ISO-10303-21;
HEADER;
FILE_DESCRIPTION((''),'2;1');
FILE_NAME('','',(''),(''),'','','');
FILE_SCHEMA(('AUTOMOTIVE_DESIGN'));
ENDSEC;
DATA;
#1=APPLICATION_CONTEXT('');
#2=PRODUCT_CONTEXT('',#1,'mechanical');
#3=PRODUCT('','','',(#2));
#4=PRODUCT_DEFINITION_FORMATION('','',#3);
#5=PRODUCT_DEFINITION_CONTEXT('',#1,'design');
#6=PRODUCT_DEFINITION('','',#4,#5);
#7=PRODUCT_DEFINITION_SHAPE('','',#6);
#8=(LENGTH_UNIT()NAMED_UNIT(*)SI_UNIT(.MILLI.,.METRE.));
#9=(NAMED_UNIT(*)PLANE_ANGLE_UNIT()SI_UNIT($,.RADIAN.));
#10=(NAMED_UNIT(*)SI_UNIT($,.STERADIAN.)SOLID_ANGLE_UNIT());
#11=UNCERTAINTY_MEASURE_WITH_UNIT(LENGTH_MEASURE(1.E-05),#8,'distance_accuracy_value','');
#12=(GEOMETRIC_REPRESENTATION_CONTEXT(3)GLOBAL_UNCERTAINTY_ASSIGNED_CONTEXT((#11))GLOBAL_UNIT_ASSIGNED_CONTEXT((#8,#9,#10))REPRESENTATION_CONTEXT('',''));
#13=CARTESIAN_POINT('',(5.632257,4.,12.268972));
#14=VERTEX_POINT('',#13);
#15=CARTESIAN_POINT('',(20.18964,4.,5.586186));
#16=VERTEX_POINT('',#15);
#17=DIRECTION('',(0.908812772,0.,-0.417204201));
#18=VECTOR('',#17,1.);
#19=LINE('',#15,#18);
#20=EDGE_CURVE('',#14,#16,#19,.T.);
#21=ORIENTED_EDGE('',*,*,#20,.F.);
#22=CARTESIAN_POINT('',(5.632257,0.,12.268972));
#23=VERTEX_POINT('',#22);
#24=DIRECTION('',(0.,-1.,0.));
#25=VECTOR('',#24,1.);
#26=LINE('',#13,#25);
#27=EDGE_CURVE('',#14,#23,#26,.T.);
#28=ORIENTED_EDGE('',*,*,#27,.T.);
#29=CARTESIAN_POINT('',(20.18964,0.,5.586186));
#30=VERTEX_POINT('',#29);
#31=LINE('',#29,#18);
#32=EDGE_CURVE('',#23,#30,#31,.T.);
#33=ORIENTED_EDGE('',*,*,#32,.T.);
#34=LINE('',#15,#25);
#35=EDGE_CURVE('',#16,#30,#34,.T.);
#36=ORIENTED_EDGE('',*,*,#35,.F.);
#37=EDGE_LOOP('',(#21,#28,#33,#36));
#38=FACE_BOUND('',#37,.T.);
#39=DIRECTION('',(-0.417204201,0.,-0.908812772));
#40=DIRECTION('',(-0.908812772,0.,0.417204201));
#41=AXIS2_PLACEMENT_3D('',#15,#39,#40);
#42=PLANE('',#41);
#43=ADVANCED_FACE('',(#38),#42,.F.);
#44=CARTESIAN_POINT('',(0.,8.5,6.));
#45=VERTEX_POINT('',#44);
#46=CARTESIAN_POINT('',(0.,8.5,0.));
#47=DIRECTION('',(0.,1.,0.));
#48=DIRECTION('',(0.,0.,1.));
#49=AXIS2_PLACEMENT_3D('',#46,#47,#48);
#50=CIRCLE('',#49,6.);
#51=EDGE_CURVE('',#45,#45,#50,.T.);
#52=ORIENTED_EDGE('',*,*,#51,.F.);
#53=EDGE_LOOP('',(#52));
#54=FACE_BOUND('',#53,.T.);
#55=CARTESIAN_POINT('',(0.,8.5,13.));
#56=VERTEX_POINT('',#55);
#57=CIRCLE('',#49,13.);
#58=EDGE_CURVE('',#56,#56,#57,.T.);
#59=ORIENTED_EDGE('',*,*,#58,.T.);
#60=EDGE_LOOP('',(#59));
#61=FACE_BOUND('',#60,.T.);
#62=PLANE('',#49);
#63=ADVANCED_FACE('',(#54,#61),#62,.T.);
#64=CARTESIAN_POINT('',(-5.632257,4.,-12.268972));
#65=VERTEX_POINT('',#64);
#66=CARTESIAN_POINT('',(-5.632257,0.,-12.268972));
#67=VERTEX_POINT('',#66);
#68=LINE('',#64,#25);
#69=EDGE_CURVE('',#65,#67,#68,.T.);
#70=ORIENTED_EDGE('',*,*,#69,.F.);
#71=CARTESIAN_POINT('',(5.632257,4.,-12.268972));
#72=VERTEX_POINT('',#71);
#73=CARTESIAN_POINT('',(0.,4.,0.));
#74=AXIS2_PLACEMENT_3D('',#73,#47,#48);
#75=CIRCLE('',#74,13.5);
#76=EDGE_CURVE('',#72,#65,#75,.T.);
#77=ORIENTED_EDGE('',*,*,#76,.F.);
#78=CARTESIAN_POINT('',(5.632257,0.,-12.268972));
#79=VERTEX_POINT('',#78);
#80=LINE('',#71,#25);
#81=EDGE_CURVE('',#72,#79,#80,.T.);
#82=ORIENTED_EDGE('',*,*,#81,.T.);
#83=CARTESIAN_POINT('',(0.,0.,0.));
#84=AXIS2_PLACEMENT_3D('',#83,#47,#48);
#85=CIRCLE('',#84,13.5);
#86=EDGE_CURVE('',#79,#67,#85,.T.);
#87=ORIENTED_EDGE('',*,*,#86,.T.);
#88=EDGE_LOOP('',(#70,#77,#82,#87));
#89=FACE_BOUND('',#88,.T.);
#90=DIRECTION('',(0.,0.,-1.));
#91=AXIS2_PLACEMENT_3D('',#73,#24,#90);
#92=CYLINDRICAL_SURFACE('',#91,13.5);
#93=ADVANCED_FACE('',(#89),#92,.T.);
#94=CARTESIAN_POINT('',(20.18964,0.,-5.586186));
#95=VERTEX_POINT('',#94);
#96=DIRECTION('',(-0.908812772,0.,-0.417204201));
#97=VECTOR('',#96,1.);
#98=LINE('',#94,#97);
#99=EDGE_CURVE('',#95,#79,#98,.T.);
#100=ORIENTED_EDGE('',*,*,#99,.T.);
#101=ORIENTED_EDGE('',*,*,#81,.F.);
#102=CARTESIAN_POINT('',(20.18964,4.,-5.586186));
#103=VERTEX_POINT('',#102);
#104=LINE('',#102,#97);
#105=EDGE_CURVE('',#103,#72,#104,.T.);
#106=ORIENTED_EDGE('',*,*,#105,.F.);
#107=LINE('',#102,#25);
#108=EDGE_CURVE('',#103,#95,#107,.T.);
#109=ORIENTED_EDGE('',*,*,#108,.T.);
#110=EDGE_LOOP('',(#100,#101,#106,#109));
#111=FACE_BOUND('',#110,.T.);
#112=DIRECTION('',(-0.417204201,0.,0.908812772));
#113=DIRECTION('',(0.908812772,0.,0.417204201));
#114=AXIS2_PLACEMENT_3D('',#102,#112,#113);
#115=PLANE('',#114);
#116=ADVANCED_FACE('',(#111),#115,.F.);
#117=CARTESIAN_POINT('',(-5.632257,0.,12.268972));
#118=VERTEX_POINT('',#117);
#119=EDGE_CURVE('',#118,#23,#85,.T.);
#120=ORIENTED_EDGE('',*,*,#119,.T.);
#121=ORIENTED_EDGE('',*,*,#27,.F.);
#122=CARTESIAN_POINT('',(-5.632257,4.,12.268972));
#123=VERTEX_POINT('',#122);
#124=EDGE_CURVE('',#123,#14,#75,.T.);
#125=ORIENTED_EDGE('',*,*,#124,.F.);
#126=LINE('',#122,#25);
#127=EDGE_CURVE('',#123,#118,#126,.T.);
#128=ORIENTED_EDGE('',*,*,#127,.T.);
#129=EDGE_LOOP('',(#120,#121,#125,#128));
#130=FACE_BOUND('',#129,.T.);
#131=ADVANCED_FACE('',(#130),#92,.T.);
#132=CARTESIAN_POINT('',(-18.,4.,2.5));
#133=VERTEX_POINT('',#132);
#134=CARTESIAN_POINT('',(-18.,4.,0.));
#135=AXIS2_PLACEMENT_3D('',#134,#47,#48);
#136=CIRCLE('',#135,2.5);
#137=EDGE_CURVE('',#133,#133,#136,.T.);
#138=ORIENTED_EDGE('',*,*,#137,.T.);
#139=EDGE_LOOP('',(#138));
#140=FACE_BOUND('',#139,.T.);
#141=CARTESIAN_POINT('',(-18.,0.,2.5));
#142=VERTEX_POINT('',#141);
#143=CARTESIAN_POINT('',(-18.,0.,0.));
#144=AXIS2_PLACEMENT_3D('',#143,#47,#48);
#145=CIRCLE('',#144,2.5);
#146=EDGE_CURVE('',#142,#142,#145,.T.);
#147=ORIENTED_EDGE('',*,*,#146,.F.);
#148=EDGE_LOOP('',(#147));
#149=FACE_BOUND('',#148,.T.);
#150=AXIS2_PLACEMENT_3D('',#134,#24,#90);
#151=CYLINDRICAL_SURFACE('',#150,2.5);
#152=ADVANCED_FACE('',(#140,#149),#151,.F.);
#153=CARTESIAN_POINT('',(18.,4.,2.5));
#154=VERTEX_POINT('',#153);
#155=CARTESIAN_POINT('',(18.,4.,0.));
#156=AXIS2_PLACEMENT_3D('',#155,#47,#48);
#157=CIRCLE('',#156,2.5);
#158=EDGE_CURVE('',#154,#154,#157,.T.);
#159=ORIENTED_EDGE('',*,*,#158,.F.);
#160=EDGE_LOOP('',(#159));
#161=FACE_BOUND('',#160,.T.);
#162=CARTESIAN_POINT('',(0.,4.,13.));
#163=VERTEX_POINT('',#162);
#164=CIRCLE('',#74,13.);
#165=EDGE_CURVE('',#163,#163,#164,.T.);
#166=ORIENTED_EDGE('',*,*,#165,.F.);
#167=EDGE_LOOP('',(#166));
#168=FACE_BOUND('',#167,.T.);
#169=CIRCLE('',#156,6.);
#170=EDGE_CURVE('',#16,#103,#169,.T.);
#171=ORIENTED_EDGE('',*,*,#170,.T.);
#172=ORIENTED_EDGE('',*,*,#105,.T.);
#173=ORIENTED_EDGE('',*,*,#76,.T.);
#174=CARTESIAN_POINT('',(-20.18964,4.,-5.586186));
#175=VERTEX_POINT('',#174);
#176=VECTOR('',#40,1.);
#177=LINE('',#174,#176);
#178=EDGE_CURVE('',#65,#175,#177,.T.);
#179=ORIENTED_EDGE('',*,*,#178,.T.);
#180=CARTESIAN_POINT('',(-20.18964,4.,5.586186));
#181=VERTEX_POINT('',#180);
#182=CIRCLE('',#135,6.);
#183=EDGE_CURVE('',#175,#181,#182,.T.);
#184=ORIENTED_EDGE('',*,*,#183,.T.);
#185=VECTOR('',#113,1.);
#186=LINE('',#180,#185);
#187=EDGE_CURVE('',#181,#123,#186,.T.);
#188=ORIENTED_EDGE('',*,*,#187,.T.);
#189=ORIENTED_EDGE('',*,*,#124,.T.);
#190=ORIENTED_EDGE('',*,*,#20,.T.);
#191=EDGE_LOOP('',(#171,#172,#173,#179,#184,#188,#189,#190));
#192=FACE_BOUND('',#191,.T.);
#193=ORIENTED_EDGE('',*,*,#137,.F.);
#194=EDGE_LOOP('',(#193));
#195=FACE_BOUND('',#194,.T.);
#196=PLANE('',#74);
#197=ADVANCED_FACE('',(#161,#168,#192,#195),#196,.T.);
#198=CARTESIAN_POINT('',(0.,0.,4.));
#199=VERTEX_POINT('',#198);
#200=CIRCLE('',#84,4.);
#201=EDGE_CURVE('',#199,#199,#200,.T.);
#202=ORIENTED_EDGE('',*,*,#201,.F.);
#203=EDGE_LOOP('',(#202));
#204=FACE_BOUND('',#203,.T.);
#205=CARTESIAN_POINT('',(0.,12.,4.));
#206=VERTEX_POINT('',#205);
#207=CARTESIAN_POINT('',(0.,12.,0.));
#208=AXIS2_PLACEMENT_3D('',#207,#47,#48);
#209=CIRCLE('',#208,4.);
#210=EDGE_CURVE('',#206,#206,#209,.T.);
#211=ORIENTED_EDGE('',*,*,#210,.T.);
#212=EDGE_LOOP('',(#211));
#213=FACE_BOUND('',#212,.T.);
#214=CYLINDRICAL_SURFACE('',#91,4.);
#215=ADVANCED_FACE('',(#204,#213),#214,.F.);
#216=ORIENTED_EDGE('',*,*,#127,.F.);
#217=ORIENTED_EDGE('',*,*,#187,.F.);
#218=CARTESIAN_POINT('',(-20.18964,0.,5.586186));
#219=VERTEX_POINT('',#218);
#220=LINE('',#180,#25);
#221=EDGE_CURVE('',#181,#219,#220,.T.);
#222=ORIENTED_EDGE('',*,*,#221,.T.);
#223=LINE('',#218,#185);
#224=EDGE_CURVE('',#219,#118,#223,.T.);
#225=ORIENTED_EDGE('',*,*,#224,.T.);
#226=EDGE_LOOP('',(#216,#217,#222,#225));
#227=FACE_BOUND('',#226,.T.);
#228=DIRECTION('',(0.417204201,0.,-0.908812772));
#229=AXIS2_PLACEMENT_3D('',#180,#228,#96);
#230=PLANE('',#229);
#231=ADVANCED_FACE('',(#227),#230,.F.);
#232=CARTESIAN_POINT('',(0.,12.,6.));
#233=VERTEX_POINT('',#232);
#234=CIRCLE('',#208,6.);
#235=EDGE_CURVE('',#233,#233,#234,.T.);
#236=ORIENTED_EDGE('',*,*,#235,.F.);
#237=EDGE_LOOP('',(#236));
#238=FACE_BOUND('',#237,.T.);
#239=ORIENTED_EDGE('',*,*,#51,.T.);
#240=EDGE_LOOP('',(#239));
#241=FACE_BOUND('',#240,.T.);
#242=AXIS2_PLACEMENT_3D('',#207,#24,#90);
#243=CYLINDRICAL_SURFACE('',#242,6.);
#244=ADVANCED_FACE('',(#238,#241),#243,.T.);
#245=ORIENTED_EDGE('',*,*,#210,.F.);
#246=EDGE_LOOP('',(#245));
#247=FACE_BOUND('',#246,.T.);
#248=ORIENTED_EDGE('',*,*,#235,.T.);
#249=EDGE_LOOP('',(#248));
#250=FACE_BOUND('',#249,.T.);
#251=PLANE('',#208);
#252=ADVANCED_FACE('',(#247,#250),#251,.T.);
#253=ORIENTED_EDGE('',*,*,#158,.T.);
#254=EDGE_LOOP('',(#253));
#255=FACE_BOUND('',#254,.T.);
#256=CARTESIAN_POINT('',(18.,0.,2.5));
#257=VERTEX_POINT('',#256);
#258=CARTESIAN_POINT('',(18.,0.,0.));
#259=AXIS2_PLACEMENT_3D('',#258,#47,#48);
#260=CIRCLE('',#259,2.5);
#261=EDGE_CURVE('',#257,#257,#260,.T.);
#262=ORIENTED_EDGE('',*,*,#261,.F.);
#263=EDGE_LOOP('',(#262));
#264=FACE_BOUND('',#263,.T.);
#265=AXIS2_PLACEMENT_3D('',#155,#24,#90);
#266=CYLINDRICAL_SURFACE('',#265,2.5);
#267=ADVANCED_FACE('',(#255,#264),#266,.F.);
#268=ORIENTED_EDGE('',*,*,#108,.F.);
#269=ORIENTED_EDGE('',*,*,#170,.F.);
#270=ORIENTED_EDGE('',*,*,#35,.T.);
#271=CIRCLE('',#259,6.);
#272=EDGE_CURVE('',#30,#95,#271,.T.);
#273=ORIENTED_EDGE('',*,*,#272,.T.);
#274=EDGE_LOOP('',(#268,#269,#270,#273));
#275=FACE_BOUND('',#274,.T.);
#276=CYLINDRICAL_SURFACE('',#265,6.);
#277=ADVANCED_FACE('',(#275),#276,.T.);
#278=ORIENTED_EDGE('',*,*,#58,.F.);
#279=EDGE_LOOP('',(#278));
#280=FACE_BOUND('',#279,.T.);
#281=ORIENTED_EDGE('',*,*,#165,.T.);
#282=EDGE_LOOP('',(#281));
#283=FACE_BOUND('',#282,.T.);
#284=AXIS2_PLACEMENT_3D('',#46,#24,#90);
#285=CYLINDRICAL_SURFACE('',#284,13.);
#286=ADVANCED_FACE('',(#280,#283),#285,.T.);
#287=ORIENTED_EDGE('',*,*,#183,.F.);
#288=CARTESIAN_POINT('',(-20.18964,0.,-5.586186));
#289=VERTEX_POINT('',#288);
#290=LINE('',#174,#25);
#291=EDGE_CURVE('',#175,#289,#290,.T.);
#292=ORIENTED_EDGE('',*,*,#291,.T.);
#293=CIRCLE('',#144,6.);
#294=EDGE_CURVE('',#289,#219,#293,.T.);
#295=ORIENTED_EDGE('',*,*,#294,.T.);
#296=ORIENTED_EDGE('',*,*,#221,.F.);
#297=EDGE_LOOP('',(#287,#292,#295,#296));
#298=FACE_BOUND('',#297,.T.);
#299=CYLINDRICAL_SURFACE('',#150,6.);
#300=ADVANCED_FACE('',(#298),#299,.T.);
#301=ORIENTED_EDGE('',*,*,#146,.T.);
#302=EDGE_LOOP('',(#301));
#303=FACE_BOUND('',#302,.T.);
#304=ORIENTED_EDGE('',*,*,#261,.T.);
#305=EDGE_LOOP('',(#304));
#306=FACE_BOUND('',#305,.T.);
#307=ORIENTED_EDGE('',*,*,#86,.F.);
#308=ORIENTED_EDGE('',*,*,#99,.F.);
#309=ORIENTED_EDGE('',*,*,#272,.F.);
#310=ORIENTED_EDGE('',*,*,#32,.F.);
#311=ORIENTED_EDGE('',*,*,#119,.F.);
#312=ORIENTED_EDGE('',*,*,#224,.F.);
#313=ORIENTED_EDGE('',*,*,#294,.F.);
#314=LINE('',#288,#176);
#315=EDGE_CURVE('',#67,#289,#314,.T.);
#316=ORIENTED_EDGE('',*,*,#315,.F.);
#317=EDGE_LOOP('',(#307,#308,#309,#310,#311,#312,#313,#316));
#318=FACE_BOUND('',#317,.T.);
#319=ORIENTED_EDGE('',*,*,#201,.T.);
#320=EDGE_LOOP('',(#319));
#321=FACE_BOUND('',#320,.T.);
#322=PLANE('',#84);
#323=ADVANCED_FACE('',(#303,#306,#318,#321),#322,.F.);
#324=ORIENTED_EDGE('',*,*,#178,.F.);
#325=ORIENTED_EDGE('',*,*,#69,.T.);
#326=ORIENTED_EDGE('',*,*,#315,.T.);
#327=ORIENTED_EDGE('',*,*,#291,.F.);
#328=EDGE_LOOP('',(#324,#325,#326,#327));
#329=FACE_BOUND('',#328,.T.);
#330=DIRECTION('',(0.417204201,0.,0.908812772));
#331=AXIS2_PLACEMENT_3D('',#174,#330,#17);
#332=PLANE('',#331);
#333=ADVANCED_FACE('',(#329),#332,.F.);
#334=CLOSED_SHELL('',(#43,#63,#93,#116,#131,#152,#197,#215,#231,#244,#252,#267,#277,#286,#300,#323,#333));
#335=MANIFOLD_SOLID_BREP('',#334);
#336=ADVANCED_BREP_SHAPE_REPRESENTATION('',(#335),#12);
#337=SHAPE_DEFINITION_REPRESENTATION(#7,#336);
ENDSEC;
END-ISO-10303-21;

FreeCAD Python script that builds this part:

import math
import FreeCAD as App
import Part
import Sketcher
from FreeCAD import Vector
Q = App.Units.Quantity

doc = App.newDocument("Part")
body = doc.addObject("PartDesign::Body", "Body")

# Sketch on XZ plane
sketch1 = body.newObject("Sketcher::SketchObject", "Sketch")
sketch1.AttachmentSupport = (doc.getObject("XZ_Plane"), [""])
sketch1.MapMode = "FlatFace"
sketch1.addGeometry(Part.LineSegment(Vector(-5.632257, -12.268972, 0), Vector(-20.18964, -5.586186, 0)), False)
sketch1.addGeometry(Part.ArcOfCircle(Part.Circle(Vector(-18, 0, 0), Vector(0, 0, 1), 6), math.radians(111.403888), math.radians(248.596112)), False)
sketch1.addGeometry(Part.LineSegment(Vector(-20.18964, 5.586186, 0), Vector(-5.632257, 12.268972, 0)), False)
sketch1.addGeometry(Part.ArcOfCircle(Part.Circle(Vector(0, 0, 0), Vector(0, 0, 1), 13.5), math.radians(65.341798), math.radians(114.658202)), False)
sketch1.addGeometry(Part.LineSegment(Vector(5.632257, 12.268972, 0), Vector(20.18964, 5.586186, 0)), False)
sketch1.addGeometry(Part.ArcOfCircle(Part.Circle(Vector(18, 0, 0), Vector(0, 0, 1), 6), math.radians(-68.596112), math.radians(68.596112)), False)
sketch1.addGeometry(Part.LineSegment(Vector(20.18964, -5.586186, 0), Vector(5.632257, -12.268972, 0)), False)
sketch1.addGeometry(Part.ArcOfCircle(Part.Circle(Vector(0, 0, 0), Vector(0, 0, 1), 13.5), math.radians(-114.658202), math.radians(-65.341798)), False)
sketch1.addGeometry(Part.Circle(Vector(18, 0, 0), Vector(0, 0, 1), 2.5), False)
sketch1.addGeometry(Part.Circle(Vector(0, 0, 0), Vector(0, 0, 1), 4), False)
sketch1.addGeometry(Part.Circle(Vector(-18, 0, 0), Vector(0, 0, 1), 2.5), False)
sketch1.addConstraint(Sketcher.Constraint("Coincident", 0, 2, 1, 2))
sketch1.addConstraint(Sketcher.Constraint("Coincident", 1, 1, 2, 1))
sketch1.addConstraint(Sketcher.Constraint("Tangent", 2, 2, 3, 2))
sketch1.addConstraint(Sketcher.Constraint("Tangent", 3, 1, 4, 1))
sketch1.addConstraint(Sketcher.Constraint("Coincident", 4, 2, 5, 2))
sketch1.addConstraint(Sketcher.Constraint("Coincident", 5, 1, 6, 1))
sketch1.addConstraint(Sketcher.Constraint("Tangent", 6, 2, 7, 2))
sketch1.addConstraint(Sketcher.Constraint("Tangent", 7, 1, 0, 1))
sketch1.addConstraint(Sketcher.Constraint("Coincident", 3, 3, -1, 1))
sketch1.addConstraint(Sketcher.Constraint("Coincident", 7, 3, -1, 1))
sketch1.addConstraint(Sketcher.Constraint("Coincident", 9, 3, -1, 1))
sketch1.addConstraint(Sketcher.Constraint("Coincident", 8, 3, 5, 3))
sketch1.addConstraint(Sketcher.Constraint("Coincident", 10, 3, 1, 3))
sketch1.addConstraint(Sketcher.Constraint("Equal", 1, 5))
sketch1.addConstraint(Sketcher.Constraint("Equal", 3, 7))
sketch1.addConstraint(Sketcher.Constraint("Equal", 8, 10))
sketch1.addConstraint(Sketcher.Constraint("Symmetric", 1, 3, 5, 3, -1, 1))
sketch1.addConstraint(Sketcher.Constraint("Symmetric", 1, 1, 4, 2, -2))
sketch1.addConstraint(Sketcher.Constraint("Parallel", 0, 4))
sketch1.addConstraint(Sketcher.Constraint("Parallel", 2, 6))
sketch1.addConstraint(Sketcher.Constraint("Diameter", 8, Q("5 mm")))
sketch1.addConstraint(Sketcher.Constraint("Diameter", 9, Q("8 mm")))
sketch1.addConstraint(Sketcher.Constraint("Radius", 1, Q("6 mm")))
sketch1.addConstraint(Sketcher.Constraint("Radius", 3, Q("13.5 mm")))
sketch1.addConstraint(Sketcher.Constraint("DistanceX", 1, 3, -1, 1, Q("18 mm")))
sketch1.addConstraint(Sketcher.Constraint("DistanceX", 0, 2, -1, 1, Q("20.18964 mm")))
pad1 = body.newObject("PartDesign::Pad", "Pad")
pad1.Profile = sketch1
pad1.Length = 4
pad1.Reversed = True

# Sketch on XZ plane
sketch2 = body.newObject("Sketcher::SketchObject", "Sketch001")
sketch2.AttachmentSupport = (doc.getObject("XZ_Plane"), [""])
sketch2.MapMode = "FlatFace"
sketch2.AttachmentOffset = App.Placement(Vector(0, 0, -4), App.Rotation())
sketch2.addGeometry(Part.Circle(Vector(0, 0, 0), Vector(0, 0, 1), 13), False)
sketch2.addGeometry(Part.Circle(Vector(0, 0, 0), Vector(0, 0, 1), 4), False)
sketch2.addConstraint(Sketcher.Constraint("Coincident", 0, 3, -1, 1))
sketch2.addConstraint(Sketcher.Constraint("Coincident", 1, 3, -1, 1))
sketch2.addConstraint(Sketcher.Constraint("Diameter", 0, Q("26 mm")))
sketch2.addConstraint(Sketcher.Constraint("Diameter", 1, Q("8 mm")))
pad2 = body.newObject("PartDesign::Pad", "Pad001")
pad2.Profile = sketch2
pad2.Length = 4.5
pad2.Reversed = True

# Sketch on XZ plane
sketch3 = body.newObject("Sketcher::SketchObject", "Sketch002")
sketch3.AttachmentSupport = (doc.getObject("XZ_Plane"), [""])
sketch3.MapMode = "FlatFace"
sketch3.AttachmentOffset = App.Placement(Vector(0, 0, -8.5), App.Rotation())
sketch3.addGeometry(Part.Circle(Vector(0, 0, 0), Vector(0, 0, 1), 6), False)
sketch3.addGeometry(Part.Circle(Vector(0, 0, 0), Vector(0, 0, 1), 4), False)
sketch3.addConstraint(Sketcher.Constraint("Coincident", 0, 3, -1, 1))
sketch3.addConstraint(Sketcher.Constraint("Coincident", 1, 3, -1, 1))
sketch3.addConstraint(Sketcher.Constraint("Diameter", 0, Q("12 mm")))
sketch3.addConstraint(Sketcher.Constraint("Diameter", 1, Q("8 mm")))
pad3 = body.newObject("PartDesign::Pad", "Pad002")
pad3.Profile = sketch3
pad3.Length = 3.5
pad3.Reversed = True

doc.recompute()
